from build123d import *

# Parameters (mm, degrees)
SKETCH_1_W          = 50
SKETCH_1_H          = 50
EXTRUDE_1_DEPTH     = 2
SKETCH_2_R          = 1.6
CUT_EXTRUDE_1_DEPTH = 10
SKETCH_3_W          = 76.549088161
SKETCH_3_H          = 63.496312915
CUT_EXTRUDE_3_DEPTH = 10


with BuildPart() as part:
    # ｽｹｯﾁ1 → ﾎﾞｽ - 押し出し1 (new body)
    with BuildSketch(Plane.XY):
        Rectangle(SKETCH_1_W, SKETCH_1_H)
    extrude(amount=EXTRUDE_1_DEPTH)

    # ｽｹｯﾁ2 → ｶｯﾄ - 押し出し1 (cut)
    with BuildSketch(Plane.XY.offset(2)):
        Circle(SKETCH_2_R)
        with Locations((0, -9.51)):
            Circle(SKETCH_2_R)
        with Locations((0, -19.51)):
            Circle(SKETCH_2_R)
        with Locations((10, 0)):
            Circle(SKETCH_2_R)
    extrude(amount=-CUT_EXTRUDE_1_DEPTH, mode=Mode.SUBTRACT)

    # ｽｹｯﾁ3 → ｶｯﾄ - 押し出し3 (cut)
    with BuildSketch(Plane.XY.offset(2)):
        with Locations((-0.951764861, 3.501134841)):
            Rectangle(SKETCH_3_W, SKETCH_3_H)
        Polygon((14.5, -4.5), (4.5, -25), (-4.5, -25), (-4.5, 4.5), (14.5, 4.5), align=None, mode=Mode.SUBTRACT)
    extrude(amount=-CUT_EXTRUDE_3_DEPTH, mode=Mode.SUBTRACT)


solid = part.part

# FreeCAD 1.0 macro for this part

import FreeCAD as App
import Part
import Sketcher


def add_polygon(sketch, points):
    """Adds a closed chain of lines whose ends are joined by coincident constraints."""
    first, n = sketch.GeometryCount, len(points)
    for a, b in zip(points, points[1:] + points[:1]):
        sketch.addGeometry(Part.LineSegment(App.Vector(*a, 0), App.Vector(*b, 0)), False)
    for i in range(n):
        sketch.addConstraint(Sketcher.Constraint("Coincident", first + i, 2, first + (i + 1) % n, 1))

doc = App.newDocument("Part")
body = doc.addObject("PartDesign::Body", "Body")

# Sketch on XY plane
sketch1 = body.newObject("Sketcher::SketchObject", "Sketch")
sketch1.AttachmentSupport = (doc.getObject("XY_Plane"), [""])
sketch1.MapMode = "FlatFace"
add_polygon(sketch1, [(-25, 25), (-25, -25), (25, -25), (25, 25)])  # lines 0-3
sketch1.addConstraint(Sketcher.Constraint("Vertical", 0))
sketch1.addConstraint(Sketcher.Constraint("Horizontal", 1))
sketch1.addConstraint(Sketcher.Constraint("Vertical", 2))
sketch1.addConstraint(Sketcher.Constraint("Horizontal", 3))
sketch1.addConstraint(Sketcher.Constraint("Symmetric", 0, 2, 2, 2, -1, 1))
sketch1.addConstraint(Sketcher.Constraint("Equal", 3, 0))
sketch1.addConstraint(Sketcher.Constraint("DistanceX", 1, 1, 1, 2, 50.0))
pad1 = body.newObject("PartDesign::Pad", "Pad")
pad1.Profile = sketch1
pad1.Length = 2

# Sketch on XY plane
sketch2 = body.newObject("Sketcher::SketchObject", "Sketch001")
sketch2.AttachmentSupport = (doc.getObject("XY_Plane"), [""])
sketch2.MapMode = "FlatFace"
sketch2.AttachmentOffset = App.Placement(App.Vector(0, 0, 2), App.Rotation())
sketch2.addGeometry(Part.Circle(App.Vector(0, 0, 0), App.Vector(0, 0, 1), 1.6), False)
sketch2.addGeometry(Part.Circle(App.Vector(0, -9.5, 0), App.Vector(0, 0, 1), 1.6), False)
sketch2.addGeometry(Part.Circle(App.Vector(0, -19.5, 0), App.Vector(0, 0, 1), 1.6), False)
sketch2.addGeometry(Part.Circle(App.Vector(10, 0, 0), App.Vector(0, 0, 1), 1.6), False)
sketch2.addConstraint(Sketcher.Constraint("Coincident", 0, 3, -1, 1))
sketch2.addConstraint(Sketcher.Constraint("Equal", 0, 1))
sketch2.addConstraint(Sketcher.Constraint("Equal", 1, 2))
sketch2.addConstraint(Sketcher.Constraint("Equal", 2, 3))
sketch2.addConstraint(Sketcher.Constraint("PointOnObject", 1, 3, -2))
sketch2.addConstraint(Sketcher.Constraint("PointOnObject", 2, 3, -2))
sketch2.addConstraint(Sketcher.Constraint("PointOnObject", 3, 3, -1))
sketch2.addConstraint(Sketcher.Constraint("Diameter", 0, 3.2))
sketch2.addConstraint(Sketcher.Constraint("DistanceX", -1, 1, 3, 3, 10.0))
sketch2.addConstraint(Sketcher.Constraint("DistanceY", 2, 3, 1, 3, 10.0))
sketch2.addConstraint(Sketcher.Constraint("DistanceY", 1, 3, -1, 1, 9.51))
pocket1 = body.newObject("PartDesign::Pocket", "Pocket")
pocket1.Profile = sketch2
pocket1.Length = 10

# Sketch on XY plane
sketch3 = body.newObject("Sketcher::SketchObject", "Sketch002")
sketch3.AttachmentSupport = (doc.getObject("XY_Plane"), [""])
sketch3.MapMode = "FlatFace"
sketch3.AttachmentOffset = App.Placement(App.Vector(0, 0, 2), App.Rotation())
add_polygon(sketch3, [(-39, 35), (-39, -28), (37, -28), (37, 35)])  # lines 0-3
add_polygon(sketch3, [(14, 4), (14, -4), (4, -25), (-4, -25), (-4, 4)])  # lines 4-8
sketch3.addConstraint(Sketcher.Constraint("Vertical", 0))
sketch3.addConstraint(Sketcher.Constraint("Horizontal", 1))
sketch3.addConstraint(Sketcher.Constraint("Vertical", 2))
sketch3.addConstraint(Sketcher.Constraint("Horizontal", 3))
sketch3.addConstraint(Sketcher.Constraint("Vertical", 4))
sketch3.addConstraint(Sketcher.Constraint("Horizontal", 6))
sketch3.addConstraint(Sketcher.Constraint("Vertical", 7))
sketch3.addConstraint(Sketcher.Constraint("Horizontal", 8))
sketch3.addConstraint(Sketcher.Constraint("Equal", 6, 4))
sketch3.addConstraint(Sketcher.Constraint("DistanceX", 6, 2, 6, 1, 9.0))
sketch3.addConstraint(Sketcher.Constraint("DistanceX", 8, 1, 8, 2, 19.0))
sketch3.addConstraint(Sketcher.Constraint("DistanceY", 7, 1, 7, 2, 29.5))
sketch3.addConstraint(Sketcher.Constraint("DistanceY", 5, 2, -1, 1, 25.0))
sketch3.addConstraint(Sketcher.Constraint("DistanceX", -1, 1, 4, 2, 14.5))
sketch3.addConstraint(Sketcher.Constraint("DistanceX", 1, 1, 1, 2, 76.549088))
sketch3.addConstraint(Sketcher.Constraint("DistanceY", 0, 2, 0, 1, 63.496313))
sketch3.addConstraint(Sketcher.Constraint("DistanceX", 0, 2, -1, 1, 39.226309))
sketch3.addConstraint(Sketcher.Constraint("DistanceY", 0, 2, -1, 1, 28.247022))
pocket2 = body.newObject("PartDesign::Pocket", "Pocket001")
pocket2.Profile = sketch3
pocket2.Length = 10

doc.recompute()
